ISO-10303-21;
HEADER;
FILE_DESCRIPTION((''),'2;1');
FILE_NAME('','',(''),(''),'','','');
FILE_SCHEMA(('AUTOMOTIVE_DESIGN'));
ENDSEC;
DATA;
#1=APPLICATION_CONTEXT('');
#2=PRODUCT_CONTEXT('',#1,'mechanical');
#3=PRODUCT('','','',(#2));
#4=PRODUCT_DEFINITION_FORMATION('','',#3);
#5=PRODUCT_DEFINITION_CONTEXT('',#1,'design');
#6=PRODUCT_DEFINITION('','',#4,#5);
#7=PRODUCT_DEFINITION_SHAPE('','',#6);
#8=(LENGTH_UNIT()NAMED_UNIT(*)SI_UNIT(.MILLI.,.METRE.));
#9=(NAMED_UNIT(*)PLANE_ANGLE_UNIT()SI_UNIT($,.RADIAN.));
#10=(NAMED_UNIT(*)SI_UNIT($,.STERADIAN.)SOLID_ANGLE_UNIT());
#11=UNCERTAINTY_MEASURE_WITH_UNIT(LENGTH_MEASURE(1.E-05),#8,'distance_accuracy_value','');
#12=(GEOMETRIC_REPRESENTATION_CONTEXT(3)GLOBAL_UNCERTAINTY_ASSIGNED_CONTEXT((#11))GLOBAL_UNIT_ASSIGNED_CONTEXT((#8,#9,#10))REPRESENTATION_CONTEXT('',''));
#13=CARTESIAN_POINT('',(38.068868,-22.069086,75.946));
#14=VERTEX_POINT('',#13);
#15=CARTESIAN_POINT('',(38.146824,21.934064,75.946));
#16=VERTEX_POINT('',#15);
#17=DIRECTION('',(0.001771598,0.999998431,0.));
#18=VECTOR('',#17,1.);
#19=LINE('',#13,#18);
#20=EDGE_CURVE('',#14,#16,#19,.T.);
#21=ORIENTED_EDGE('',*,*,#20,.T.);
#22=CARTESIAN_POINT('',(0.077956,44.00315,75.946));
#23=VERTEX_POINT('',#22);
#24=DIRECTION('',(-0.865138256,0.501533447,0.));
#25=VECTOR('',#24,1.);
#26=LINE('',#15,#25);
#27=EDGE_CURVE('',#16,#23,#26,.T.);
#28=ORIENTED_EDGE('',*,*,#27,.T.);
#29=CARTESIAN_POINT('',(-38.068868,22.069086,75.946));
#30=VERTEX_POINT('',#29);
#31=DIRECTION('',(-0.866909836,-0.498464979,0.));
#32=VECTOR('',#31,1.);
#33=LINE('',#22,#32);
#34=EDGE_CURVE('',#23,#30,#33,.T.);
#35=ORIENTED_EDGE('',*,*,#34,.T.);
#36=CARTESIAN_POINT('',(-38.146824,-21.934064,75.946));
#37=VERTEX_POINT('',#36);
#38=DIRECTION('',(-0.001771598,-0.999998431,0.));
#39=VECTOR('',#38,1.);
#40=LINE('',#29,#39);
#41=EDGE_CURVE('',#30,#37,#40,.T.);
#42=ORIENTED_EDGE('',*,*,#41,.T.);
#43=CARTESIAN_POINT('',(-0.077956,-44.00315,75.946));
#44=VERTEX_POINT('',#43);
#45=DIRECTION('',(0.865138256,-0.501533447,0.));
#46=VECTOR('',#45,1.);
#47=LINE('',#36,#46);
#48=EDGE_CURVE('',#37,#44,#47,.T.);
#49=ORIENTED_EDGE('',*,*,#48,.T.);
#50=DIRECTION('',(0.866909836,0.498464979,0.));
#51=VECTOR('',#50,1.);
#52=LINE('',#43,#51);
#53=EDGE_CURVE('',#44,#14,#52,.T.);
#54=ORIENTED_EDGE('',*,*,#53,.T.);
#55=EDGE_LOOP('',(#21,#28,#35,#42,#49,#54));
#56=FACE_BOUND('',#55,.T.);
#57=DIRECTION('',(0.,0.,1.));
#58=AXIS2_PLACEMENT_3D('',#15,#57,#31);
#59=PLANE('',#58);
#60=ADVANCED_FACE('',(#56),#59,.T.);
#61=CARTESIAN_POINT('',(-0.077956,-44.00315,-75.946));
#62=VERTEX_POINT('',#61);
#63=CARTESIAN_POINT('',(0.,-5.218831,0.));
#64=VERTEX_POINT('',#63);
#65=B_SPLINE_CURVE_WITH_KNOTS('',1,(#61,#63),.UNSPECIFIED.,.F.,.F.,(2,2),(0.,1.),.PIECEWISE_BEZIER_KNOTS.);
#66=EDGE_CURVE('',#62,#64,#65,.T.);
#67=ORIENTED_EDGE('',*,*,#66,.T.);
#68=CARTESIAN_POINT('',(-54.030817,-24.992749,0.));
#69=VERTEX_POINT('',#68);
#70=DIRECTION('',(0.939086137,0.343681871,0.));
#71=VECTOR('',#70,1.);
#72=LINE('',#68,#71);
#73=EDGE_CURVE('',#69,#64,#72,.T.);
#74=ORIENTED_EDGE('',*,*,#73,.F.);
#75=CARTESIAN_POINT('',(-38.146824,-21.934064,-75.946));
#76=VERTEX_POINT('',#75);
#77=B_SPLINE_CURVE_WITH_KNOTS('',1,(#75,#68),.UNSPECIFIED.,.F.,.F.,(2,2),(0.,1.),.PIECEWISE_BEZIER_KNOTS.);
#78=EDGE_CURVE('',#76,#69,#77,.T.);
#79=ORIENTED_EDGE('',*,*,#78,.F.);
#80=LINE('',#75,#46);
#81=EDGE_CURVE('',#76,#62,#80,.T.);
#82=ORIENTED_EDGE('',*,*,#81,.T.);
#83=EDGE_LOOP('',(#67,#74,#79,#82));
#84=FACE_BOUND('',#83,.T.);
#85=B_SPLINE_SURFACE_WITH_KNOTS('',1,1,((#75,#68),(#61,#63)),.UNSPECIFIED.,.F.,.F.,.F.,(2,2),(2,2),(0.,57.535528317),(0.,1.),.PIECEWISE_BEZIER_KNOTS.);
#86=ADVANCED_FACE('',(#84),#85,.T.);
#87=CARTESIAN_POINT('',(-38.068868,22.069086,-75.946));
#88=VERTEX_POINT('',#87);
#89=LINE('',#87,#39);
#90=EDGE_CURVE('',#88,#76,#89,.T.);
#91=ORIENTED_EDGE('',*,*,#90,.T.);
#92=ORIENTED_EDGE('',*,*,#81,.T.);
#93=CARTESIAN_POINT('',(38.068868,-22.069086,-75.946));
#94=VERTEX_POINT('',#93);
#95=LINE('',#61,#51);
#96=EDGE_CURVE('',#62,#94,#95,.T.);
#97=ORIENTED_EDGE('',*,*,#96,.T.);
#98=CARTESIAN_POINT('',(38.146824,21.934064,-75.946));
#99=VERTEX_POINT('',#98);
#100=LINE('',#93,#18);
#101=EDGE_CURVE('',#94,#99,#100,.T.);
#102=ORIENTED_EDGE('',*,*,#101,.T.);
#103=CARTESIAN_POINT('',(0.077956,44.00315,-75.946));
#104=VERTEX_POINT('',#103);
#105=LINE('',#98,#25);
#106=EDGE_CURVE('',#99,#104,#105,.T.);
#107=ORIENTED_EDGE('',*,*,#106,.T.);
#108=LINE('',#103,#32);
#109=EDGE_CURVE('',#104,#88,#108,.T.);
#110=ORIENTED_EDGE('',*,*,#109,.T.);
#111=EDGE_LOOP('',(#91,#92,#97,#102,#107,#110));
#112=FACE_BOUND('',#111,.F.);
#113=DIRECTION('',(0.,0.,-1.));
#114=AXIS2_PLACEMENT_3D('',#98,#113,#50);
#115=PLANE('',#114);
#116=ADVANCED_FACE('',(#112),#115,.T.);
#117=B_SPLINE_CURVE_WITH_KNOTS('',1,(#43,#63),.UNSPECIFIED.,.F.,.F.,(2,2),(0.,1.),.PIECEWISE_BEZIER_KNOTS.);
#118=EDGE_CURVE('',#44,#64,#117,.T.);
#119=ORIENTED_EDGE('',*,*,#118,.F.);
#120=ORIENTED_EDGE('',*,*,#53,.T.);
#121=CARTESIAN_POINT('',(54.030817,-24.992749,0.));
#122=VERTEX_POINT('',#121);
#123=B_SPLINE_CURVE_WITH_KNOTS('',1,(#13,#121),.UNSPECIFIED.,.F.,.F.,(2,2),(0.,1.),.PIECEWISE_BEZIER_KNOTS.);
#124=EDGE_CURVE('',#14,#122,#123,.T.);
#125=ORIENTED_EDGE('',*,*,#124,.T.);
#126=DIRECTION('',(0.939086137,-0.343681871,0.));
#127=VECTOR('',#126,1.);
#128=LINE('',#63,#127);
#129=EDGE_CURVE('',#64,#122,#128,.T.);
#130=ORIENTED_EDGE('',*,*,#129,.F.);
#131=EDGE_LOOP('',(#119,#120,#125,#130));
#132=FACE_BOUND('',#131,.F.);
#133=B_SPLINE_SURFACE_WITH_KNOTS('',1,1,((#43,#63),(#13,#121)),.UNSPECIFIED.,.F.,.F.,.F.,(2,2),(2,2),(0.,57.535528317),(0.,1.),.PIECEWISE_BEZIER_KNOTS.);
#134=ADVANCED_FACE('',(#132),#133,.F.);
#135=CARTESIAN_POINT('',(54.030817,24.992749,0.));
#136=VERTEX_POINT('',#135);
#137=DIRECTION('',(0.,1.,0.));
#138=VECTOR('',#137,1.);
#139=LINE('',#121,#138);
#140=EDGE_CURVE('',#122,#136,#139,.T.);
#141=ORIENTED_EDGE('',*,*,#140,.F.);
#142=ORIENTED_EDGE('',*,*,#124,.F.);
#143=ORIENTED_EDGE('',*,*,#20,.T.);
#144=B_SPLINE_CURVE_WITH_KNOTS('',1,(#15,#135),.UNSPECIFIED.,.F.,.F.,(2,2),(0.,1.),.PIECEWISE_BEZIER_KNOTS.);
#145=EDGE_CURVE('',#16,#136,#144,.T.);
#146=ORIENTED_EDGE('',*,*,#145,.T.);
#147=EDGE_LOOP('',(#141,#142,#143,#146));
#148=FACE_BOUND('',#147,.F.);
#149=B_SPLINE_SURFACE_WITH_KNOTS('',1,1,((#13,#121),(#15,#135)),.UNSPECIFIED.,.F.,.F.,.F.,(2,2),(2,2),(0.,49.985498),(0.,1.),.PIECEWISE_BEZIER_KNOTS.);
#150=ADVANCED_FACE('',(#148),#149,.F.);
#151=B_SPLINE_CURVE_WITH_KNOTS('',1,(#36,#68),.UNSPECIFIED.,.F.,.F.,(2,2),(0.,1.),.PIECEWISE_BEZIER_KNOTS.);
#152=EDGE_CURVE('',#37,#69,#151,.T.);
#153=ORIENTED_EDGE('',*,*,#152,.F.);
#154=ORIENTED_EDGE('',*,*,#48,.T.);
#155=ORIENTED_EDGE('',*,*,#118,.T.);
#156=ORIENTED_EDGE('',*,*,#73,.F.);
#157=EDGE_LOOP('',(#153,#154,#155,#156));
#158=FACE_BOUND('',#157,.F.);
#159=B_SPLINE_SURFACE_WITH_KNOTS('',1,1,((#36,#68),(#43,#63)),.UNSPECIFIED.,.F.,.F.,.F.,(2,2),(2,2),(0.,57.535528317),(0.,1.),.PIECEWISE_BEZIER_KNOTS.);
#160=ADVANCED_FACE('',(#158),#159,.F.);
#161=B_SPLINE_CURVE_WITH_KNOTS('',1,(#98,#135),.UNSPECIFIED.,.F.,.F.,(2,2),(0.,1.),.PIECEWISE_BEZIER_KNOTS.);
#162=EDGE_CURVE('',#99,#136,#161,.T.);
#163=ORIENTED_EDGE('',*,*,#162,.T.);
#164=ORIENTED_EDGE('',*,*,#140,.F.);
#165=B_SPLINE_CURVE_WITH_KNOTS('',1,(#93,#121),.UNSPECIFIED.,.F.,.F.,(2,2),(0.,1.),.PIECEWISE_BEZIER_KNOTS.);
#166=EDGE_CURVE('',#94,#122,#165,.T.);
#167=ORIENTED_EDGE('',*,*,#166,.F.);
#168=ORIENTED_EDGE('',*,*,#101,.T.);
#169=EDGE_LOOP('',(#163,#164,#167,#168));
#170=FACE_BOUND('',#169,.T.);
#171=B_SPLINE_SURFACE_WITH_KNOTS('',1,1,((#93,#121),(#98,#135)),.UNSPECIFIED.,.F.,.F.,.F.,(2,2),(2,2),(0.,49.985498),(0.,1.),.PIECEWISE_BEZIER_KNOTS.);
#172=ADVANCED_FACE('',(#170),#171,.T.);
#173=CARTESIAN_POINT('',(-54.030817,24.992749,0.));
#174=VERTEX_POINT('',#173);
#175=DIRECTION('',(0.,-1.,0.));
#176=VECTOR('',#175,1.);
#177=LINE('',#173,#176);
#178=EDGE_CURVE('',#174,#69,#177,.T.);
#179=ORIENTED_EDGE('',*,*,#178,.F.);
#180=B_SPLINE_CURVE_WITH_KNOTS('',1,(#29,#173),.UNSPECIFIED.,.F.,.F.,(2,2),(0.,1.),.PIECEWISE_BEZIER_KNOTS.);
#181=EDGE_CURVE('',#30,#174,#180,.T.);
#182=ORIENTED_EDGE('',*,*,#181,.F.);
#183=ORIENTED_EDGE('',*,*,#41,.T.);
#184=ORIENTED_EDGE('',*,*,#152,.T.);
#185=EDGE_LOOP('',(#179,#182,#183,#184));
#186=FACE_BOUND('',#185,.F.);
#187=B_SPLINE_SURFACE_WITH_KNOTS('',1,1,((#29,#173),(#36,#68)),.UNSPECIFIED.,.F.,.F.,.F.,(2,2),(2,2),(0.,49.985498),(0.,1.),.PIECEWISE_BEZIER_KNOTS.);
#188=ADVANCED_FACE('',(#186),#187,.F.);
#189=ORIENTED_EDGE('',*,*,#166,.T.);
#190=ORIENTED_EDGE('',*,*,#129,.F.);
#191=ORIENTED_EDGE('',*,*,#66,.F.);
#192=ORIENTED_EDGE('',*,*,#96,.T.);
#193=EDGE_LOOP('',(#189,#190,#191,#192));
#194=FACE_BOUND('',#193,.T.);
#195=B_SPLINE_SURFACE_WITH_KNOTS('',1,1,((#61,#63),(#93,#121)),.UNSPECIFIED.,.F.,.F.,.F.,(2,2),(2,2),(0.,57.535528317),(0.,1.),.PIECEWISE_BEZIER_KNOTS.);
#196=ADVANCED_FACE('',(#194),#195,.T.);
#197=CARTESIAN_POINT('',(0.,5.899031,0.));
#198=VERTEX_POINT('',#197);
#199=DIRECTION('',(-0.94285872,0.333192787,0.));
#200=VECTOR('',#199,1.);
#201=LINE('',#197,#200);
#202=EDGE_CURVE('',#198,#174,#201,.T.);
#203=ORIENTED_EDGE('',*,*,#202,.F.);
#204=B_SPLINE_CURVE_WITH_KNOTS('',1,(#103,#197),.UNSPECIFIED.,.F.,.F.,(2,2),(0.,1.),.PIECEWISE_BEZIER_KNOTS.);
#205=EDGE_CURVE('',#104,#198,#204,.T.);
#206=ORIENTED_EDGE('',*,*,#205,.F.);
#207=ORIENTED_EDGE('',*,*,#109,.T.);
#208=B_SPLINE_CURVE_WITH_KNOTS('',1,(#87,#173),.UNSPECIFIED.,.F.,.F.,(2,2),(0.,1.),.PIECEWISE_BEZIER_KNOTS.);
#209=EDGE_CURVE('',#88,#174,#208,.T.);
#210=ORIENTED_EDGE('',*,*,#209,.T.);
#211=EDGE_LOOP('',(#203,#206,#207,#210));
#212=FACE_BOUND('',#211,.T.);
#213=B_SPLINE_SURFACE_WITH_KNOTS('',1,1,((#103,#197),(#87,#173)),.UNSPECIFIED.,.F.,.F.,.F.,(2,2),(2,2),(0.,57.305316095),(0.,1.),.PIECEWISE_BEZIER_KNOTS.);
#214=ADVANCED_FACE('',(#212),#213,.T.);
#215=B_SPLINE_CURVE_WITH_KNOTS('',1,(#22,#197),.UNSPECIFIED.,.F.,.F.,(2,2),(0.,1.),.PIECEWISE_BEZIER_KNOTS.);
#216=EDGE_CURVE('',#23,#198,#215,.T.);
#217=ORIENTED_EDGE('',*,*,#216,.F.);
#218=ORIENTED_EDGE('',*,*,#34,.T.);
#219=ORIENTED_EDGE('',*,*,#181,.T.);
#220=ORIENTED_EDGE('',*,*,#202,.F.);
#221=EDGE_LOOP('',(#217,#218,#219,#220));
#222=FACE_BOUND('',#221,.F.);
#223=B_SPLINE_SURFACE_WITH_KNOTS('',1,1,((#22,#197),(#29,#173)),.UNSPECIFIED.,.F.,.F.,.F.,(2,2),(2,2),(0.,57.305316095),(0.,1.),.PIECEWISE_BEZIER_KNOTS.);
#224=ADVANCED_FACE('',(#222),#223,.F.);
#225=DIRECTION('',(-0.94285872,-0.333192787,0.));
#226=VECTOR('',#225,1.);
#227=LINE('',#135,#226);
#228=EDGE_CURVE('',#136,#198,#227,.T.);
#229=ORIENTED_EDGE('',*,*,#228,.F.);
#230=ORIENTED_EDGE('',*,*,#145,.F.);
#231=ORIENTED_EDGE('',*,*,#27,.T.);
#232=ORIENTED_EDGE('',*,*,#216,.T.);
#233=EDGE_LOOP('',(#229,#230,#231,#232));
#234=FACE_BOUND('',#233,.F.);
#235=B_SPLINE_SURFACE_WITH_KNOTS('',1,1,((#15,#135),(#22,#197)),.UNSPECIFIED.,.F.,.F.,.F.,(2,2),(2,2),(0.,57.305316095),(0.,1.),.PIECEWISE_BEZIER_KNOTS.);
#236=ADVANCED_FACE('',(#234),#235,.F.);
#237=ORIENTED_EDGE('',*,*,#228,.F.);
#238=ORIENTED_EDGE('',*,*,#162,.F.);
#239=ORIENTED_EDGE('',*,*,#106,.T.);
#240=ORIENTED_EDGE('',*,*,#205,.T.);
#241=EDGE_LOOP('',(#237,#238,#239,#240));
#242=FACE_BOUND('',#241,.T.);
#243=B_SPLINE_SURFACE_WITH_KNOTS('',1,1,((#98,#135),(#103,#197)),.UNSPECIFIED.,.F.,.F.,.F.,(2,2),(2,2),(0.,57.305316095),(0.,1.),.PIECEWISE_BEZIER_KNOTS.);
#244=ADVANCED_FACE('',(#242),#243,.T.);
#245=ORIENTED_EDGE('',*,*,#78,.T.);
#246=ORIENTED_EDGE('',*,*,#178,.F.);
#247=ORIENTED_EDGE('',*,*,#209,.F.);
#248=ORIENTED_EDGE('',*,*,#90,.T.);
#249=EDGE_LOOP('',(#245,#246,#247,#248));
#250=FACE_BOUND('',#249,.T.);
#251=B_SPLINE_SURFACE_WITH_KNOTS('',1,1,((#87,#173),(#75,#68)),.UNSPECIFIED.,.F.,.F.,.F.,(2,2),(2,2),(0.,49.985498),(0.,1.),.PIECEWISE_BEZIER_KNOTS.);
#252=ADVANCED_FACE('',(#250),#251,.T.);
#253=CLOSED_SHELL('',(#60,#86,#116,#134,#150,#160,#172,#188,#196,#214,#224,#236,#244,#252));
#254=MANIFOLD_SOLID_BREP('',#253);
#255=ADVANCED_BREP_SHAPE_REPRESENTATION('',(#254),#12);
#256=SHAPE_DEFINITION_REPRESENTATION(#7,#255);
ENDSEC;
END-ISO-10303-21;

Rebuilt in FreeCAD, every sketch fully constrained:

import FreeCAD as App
import Part
import Sketcher

V = App.Vector
Q = App.Units.Quantity


def add_polygon(sketch, points):
    """Adds a closed chain of lines whose ends are joined by coincident constraints."""
    first, n = sketch.GeometryCount, len(points)
    for a, b in zip(points, points[1:] + points[:1]):
        sketch.addGeometry(Part.LineSegment(App.Vector(*a, 0), App.Vector(*b, 0)), False)
    for i in range(n):
        sketch.addConstraint(Sketcher.Constraint("Coincident", first + i, 2, first + (i + 1) % n, 1))

doc = App.newDocument("Part")
body = doc.addObject("PartDesign::Body", "Body")

# Sketch on XY plane
sketch1 = body.newObject("Sketcher::SketchObject", "Sketch")
sketch1.AttachmentSupport = (doc.getObject("XY_Plane"), [""])
sketch1.MapMode = "FlatFace"
sketch1.AttachmentOffset = App.Placement(V(0, 0, 75.946), App.Rotation())
add_polygon(sketch1, [(38, 22), (0, 44), (-38, 22), (-38, -22), (0, -44), (38, -22)])  # lines 0-5
sketch1.addConstraint([
    Sketcher.Constraint("Symmetric", 0, 2, 3, 2, -1, 1),
    Sketcher.Constraint("Symmetric", 1, 2, 4, 2, -1, 1),
    Sketcher.Constraint("Symmetric", 2, 2, 5, 2, -1, 1),
    Sketcher.Constraint("Equal", 0, 1),
    Sketcher.Constraint("Equal", 1, 2),
    Sketcher.Constraint("DistanceY", 3, 2, 0, 2, Q("88.0063 mm")),
    Sketcher.Constraint("Distance", 0, Q("44.003219 mm")),
    Sketcher.Constraint("DistanceX", 1, 2, -1, 1, Q("38.068868 mm")),
    Sketcher.Constraint("DistanceX", 2, 2, 0, 2, Q("38.22478 mm")),
])

# Sketch on XY plane
sketch2 = body.newObject("Sketcher::SketchObject", "Sketch001")
sketch2.AttachmentSupport = (doc.getObject("XY_Plane"), [""])
sketch2.MapMode = "FlatFace"
add_polygon(sketch2, [(54, -25), (54, 25), (0, 6), (-54, 25), (-54, -25), (0, -5)])  # lines 0-5
sketch2.addConstraint([
    Sketcher.Constraint("Vertical", 0),
    Sketcher.Constraint("Vertical", 3),
    Sketcher.Constraint("Symmetric", 0, 2, 3, 2, -1, 1),
    Sketcher.Constraint("PointOnObject", 1, 2, -2),
    Sketcher.Constraint("PointOnObject", 4, 2, -2),
    Sketcher.Constraint("Horizontal", 0, 2, 2, 2),
    Sketcher.Constraint("Horizontal", 3, 2, 5, 2),
    Sketcher.Constraint("Distance", 4, Q("57.535528 mm")),
    Sketcher.Constraint("DistanceY", 0, 1, 0, 2, Q("49.985498 mm")),
    Sketcher.Constraint("DistanceY", -1, 1, 1, 2, Q("5.899031 mm")),
    Sketcher.Constraint("DistanceY", 4, 2, -1, 1, Q("5.218831 mm")),
])

additiveloft = body.newObject("PartDesign::AdditiveLoft", "AdditiveLoft")
additiveloft.Profile = sketch1
additiveloft.Sections = [sketch2]
body2 = doc.addObject("PartDesign::Body", "Body001")
doc.recompute()

body2.BaseFeature = body
doc.recompute()

mirroring = doc.addObject("Part::Mirroring", "Mirroring")
mirroring.Source = body
mirroring.Base = V(0, 0, 0)
mirroring.Normal = V(0, 0, 1)
body3 = doc.addObject("PartDesign::Body", "Body002")
body3.BaseFeature = mirroring
boolean = body2.newObject("PartDesign::Boolean", "Boolean")
boolean.Type = "Fuse"
boolean.addObjects([body3])
doc.recompute()
mirroring.Visibility = False

doc.recompute()
